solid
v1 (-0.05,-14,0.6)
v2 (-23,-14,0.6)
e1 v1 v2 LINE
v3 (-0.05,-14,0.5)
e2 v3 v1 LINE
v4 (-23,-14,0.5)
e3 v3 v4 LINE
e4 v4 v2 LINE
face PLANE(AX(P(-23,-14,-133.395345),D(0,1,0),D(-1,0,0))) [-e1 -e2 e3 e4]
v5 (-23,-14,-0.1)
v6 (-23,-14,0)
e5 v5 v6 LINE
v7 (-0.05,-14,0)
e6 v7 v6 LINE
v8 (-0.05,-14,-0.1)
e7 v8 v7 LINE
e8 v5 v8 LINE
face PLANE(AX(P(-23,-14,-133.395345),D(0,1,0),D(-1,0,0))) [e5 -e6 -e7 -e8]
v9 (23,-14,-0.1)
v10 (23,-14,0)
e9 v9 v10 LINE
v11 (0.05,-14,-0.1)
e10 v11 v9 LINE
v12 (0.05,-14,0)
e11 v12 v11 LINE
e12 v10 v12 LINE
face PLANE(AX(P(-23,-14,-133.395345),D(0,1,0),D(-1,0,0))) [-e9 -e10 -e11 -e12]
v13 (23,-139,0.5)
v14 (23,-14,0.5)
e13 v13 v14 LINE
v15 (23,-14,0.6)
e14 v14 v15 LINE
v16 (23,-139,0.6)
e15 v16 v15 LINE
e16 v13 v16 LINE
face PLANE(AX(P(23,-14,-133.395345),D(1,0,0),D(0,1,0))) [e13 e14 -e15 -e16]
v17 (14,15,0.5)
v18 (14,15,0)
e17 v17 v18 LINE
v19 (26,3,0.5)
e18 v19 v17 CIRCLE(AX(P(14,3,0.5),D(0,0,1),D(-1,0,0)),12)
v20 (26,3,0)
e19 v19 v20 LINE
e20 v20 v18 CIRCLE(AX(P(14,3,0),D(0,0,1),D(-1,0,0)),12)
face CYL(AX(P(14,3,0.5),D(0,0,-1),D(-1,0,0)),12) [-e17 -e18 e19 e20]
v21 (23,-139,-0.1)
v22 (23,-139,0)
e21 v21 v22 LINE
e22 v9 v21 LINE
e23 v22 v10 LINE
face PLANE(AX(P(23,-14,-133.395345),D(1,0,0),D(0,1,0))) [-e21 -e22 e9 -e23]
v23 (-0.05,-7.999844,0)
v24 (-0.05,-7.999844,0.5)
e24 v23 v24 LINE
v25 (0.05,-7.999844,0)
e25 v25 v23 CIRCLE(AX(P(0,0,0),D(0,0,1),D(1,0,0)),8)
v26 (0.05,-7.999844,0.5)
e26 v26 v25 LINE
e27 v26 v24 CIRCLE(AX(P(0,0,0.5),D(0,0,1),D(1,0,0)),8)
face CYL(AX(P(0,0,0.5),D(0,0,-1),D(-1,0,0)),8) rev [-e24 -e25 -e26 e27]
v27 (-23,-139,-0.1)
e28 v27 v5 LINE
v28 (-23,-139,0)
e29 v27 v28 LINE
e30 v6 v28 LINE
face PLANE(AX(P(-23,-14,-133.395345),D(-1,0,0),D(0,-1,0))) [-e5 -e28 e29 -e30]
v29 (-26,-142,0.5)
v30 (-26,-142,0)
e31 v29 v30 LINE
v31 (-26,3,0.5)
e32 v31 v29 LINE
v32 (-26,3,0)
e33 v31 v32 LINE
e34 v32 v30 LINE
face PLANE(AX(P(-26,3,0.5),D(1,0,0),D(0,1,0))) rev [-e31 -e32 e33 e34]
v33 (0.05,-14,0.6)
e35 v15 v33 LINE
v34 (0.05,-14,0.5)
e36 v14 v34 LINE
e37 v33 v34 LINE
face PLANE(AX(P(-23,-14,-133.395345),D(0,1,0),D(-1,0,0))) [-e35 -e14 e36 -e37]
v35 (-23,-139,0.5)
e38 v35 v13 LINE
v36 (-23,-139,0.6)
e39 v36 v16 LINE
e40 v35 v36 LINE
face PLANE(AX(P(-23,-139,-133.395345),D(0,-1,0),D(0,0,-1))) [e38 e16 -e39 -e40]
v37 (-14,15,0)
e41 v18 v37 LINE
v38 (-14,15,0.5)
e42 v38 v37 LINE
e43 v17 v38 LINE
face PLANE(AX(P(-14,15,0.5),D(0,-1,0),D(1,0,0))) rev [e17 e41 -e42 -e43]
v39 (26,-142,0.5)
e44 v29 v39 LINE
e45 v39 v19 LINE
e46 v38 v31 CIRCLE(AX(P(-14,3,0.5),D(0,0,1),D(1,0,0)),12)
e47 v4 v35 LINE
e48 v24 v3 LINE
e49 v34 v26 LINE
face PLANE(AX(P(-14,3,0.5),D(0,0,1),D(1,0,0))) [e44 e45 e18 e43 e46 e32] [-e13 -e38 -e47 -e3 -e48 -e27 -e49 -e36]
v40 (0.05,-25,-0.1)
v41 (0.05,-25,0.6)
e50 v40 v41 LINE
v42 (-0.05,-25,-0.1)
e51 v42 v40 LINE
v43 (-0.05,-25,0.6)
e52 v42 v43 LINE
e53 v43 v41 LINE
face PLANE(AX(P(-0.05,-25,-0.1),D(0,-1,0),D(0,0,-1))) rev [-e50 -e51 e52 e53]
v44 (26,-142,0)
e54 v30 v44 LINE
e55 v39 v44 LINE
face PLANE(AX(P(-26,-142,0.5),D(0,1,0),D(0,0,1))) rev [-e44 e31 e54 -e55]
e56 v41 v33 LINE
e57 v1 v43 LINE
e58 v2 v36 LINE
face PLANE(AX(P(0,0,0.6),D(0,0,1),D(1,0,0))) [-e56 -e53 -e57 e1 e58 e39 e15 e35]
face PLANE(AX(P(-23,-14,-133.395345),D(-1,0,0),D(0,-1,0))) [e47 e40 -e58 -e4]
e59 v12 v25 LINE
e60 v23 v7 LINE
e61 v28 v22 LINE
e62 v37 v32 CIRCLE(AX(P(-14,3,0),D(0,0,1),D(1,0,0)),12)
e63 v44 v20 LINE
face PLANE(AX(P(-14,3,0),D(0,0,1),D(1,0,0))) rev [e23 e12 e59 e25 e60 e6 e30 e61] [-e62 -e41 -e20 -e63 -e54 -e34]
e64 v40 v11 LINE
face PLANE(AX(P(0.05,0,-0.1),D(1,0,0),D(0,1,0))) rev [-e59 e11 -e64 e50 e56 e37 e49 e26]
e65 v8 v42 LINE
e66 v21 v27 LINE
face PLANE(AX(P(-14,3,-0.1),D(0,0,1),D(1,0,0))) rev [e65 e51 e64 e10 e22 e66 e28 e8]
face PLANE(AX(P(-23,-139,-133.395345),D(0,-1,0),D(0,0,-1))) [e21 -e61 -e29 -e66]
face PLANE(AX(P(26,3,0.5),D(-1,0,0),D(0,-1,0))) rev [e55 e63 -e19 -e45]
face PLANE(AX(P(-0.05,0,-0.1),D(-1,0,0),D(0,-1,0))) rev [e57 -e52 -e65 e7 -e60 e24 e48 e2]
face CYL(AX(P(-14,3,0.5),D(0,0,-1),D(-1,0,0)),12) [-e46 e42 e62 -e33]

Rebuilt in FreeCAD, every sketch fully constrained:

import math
import FreeCAD as App
import Part
import Sketcher

V = App.Vector


def add_polygon(sketch, points):
    """Adds a closed chain of lines whose ends are joined by coincident constraints."""
    first, n = sketch.GeometryCount, len(points)
    for a, b in zip(points, points[1:] + points[:1]):
        sketch.addGeometry(Part.LineSegment(App.Vector(*a, 0), App.Vector(*b, 0)), False)
    for i in range(n):
        sketch.addConstraint(Sketcher.Constraint("Coincident", first + i, 2, first + (i + 1) % n, 1))

doc = App.newDocument("Part")
body = doc.addObject("PartDesign::Body", "Body")

# Sketch on XY plane
sketch1 = body.newObject("Sketcher::SketchObject", "Sketch")
sketch1.AttachmentSupport = (doc.getObject("XY_Plane"), [""])
sketch1.MapMode = "FlatFace"
sketch1.addGeometry([
    Part.LineSegment(V(14, 15, 0), V(-14, 15, 0)),  # 0
    Part.ArcOfCircle(Part.Circle(V(-14, 3, 0), V(0, 0, 1), 12), math.radians(90), math.radians(180)),  # 1
    Part.LineSegment(V(-26, 3, 0), V(-26, -142, 0)),  # 2
    Part.LineSegment(V(-26, -142, 0), V(26, -142, 0)),  # 3
    Part.LineSegment(V(26, -142, 0), V(26, 3, 0)),  # 4
    Part.ArcOfCircle(Part.Circle(V(14, 3, 0), V(0, 0, 1), 12), math.radians(0), math.radians(90)),  # 5
    Part.Circle(V(0, 0, 0), V(0, 0, 1), 8),  # 6
], False)
sketch1.addConstraint([
    Sketcher.Constraint("Tangent", 0, 2, 1, 1),
    Sketcher.Constraint("Tangent", 1, 2, 2, 1),
    Sketcher.Constraint("Coincident", 2, 2, 3, 1),
    Sketcher.Constraint("Coincident", 3, 2, 4, 1),
    Sketcher.Constraint("Tangent", 4, 2, 5, 1),
    Sketcher.Constraint("Tangent", 5, 2, 0, 1),
    Sketcher.Constraint("Horizontal", 0),
    Sketcher.Constraint("Vertical", 2),
    Sketcher.Constraint("Horizontal", 3),
    Sketcher.Constraint("Vertical", 4),
    Sketcher.Constraint("Coincident", 6, 3, -1, 1),
    Sketcher.Constraint("Equal", 1, 5),
    Sketcher.Constraint("Diameter", 6, 16.0),
    Sketcher.Constraint("Radius", 1, 12.0),
    Sketcher.Constraint("DistanceX", 0, 2, 0, 1, 28.0),
    Sketcher.Constraint("DistanceY", 2, 2, 2, 1, 145.0),
    Sketcher.Constraint("DistanceX", 1, 3, -1, 1, 14.0),
    Sketcher.Constraint("DistanceY", -1, 1, 1, 3, 3.0),
])
pad1 = body.newObject("PartDesign::Pad", "Pad")
pad1.Profile = sketch1
pad1.Length = 0.5

# Sketch on XY plane
sketch2 = body.newObject("Sketcher::SketchObject", "Sketch001")
sketch2.AttachmentSupport = (doc.getObject("XY_Plane"), [""])
sketch2.MapMode = "FlatFace"
sketch2.AttachmentOffset = App.Placement(V(0, 0, 0.5), App.Rotation())
add_polygon(sketch2, [(-23, -14), (-23, -139), (23, -139), (23, -14)])  # lines 0-3
sketch2.addConstraint([
    Sketcher.Constraint("Vertical", 0),
    Sketcher.Constraint("Horizontal", 1),
    Sketcher.Constraint("Vertical", 2),
    Sketcher.Constraint("Horizontal", 3),
    Sketcher.Constraint("DistanceX", 1, 1, 1, 2, 46.0),
    Sketcher.Constraint("DistanceY", 0, 2, 0, 1, 125.0),
    Sketcher.Constraint("DistanceX", 0, 2, -1, 1, 23.0),
    Sketcher.Constraint("DistanceY", 0, 2, -1, 1, 139.0),
])
pad2 = body.newObject("PartDesign::Pad", "Pad001")
pad2.Profile = sketch2
pad2.Type = "TwoLengths"
pad2.Length = 0.1
pad2.Length2 = 0.6

# Sketch on XY plane
sketch3 = body.newObject("Sketcher::SketchObject", "Sketch002")
sketch3.AttachmentSupport = (doc.getObject("XY_Plane"), [""])
sketch3.MapMode = "FlatFace"
sketch3.AttachmentOffset = App.Placement(V(0, 0, 0.5), App.Rotation())
add_polygon(sketch3, [(-0.05, 0), (-0.05, -25), (0.05, -25), (0.05, 0)])  # lines 0-3
sketch3.addConstraint([
    Sketcher.Constraint("Vertical", 0),
    Sketcher.Constraint("Horizontal", 1),
    Sketcher.Constraint("Vertical", 2),
    Sketcher.Constraint("Horizontal", 3),
    Sketcher.Constraint("Symmetric", 2, 2, 3, 2, -1, 1),
    Sketcher.Constraint("DistanceY", 0, 2, 0, 1, 25.0),
    Sketcher.Constraint("DistanceX", 1, 1, 1, 2, 0.1),
])
pocket1 = body.newObject("PartDesign::Pocket", "Pocket")
pocket1.Profile = sketch3
pocket1.Type = "ThroughAll"
pocket1.Midplane = True

doc.recompute()
